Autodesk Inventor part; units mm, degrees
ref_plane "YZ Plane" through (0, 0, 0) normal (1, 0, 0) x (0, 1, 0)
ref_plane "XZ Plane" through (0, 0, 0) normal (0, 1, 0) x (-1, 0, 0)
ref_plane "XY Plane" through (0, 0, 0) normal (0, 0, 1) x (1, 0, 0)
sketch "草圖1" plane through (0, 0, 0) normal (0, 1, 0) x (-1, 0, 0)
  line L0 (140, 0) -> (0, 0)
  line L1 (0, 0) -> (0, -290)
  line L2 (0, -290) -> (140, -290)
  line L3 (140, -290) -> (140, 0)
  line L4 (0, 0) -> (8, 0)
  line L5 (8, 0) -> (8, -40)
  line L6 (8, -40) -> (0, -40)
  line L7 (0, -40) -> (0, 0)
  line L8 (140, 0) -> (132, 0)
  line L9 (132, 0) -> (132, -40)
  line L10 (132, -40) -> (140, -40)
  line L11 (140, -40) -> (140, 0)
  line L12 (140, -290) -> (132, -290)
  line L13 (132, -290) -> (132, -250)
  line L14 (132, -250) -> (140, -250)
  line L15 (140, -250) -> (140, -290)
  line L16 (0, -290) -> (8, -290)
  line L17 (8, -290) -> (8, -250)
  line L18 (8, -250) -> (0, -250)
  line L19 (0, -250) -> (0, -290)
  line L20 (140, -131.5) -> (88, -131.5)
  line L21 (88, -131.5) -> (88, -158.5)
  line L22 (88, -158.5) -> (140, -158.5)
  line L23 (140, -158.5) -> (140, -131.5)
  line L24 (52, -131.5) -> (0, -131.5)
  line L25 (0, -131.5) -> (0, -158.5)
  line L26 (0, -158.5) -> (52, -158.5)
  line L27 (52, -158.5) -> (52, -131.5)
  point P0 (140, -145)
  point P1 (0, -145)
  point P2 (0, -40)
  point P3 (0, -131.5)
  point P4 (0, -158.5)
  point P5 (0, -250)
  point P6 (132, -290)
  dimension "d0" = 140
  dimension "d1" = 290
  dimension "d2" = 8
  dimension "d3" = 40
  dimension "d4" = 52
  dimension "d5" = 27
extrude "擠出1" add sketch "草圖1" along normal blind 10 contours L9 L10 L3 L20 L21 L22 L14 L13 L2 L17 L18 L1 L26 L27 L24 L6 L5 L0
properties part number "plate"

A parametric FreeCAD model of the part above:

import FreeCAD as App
import Part
import Sketcher
from FreeCAD import Vector


def add_polygon(sketch, points):
    """Adds a closed chain of lines whose ends are joined by coincident constraints."""
    first, n = sketch.GeometryCount, len(points)
    for a, b in zip(points, points[1:] + points[:1]):
        sketch.addGeometry(Part.LineSegment(App.Vector(*a, 0), App.Vector(*b, 0)), False)
    for i in range(n):
        sketch.addConstraint(Sketcher.Constraint("Coincident", first + i, 2, first + (i + 1) % n, 1))

doc = App.newDocument("Part")
body = doc.addObject("PartDesign::Body", "Body")

sketch1 = body.newObject("Sketcher::SketchObject", "Sketch")
sketch1.AttachmentSupport = (doc.getObject("XZ_Plane"), [""])
sketch1.MapMode = "FlatFace"
add_polygon(sketch1, [(-132, -40), (-132, 0), (-8, 0), (-8, -40), (0, -40), (0, -132), (-52, -132), (-52, -158), (0, -158), (0, -250), (-8, -250), (-8, -290), (-132, -290), (-132, -250), (-140, -250), (-140, -158), (-88, -158), (-88, -132), (-140, -132), (-140, -40)])
sketch1.addConstraint(Sketcher.Constraint("Vertical", 0))
sketch1.addConstraint(Sketcher.Constraint("Horizontal", 1))
sketch1.addConstraint(Sketcher.Constraint("Vertical", 2))
sketch1.addConstraint(Sketcher.Constraint("Horizontal", 3))
sketch1.addConstraint(Sketcher.Constraint("Vertical", 4))
sketch1.addConstraint(Sketcher.Constraint("Horizontal", 5))
sketch1.addConstraint(Sketcher.Constraint("Vertical", 6))
sketch1.addConstraint(Sketcher.Constraint("Horizontal", 7))
sketch1.addConstraint(Sketcher.Constraint("Vertical", 8))
sketch1.addConstraint(Sketcher.Constraint("Horizontal", 9))
sketch1.addConstraint(Sketcher.Constraint("Vertical", 10))
sketch1.addConstraint(Sketcher.Constraint("Horizontal", 11))
sketch1.addConstraint(Sketcher.Constraint("Vertical", 12))
sketch1.addConstraint(Sketcher.Constraint("Horizontal", 13))
sketch1.addConstraint(Sketcher.Constraint("Vertical", 14))
sketch1.addConstraint(Sketcher.Constraint("Horizontal", 15))
sketch1.addConstraint(Sketcher.Constraint("Vertical", 16))
sketch1.addConstraint(Sketcher.Constraint("Horizontal", 17))
sketch1.addConstraint(Sketcher.Constraint("Vertical", 18))
sketch1.addConstraint(Sketcher.Constraint("Horizontal", 19))
sketch1.addConstraint(Sketcher.Constraint("PointOnObject", 0, 2, -1))
sketch1.addConstraint(Sketcher.Constraint("PointOnObject", 3, 2, -2))
sketch1.addConstraint(Sketcher.Constraint("PointOnObject", 7, 2, -2))
sketch1.addConstraint(Sketcher.Constraint("Horizontal", 9, 2, 12, 2))
sketch1.addConstraint(Sketcher.Constraint("Horizontal", 7, 2, 14, 2))
sketch1.addConstraint(Sketcher.Constraint("Horizontal", 5, 2, 16, 2))
sketch1.addConstraint(Sketcher.Constraint("Horizontal", 3, 2, 18, 2))
sketch1.addConstraint(Sketcher.Constraint("Vertical", 2, 2, 9, 2))
sketch1.addConstraint(Sketcher.Constraint("Vertical", 0, 2, 11, 2))
sketch1.addConstraint(Sketcher.Constraint("Vertical", 14, 2, 17, 2))
sketch1.addConstraint(Sketcher.Constraint("Equal", 9, 13))
sketch1.addConstraint(Sketcher.Constraint("Equal", 7, 15))
sketch1.addConstraint(Sketcher.Constraint("Equal", 4, 8))
sketch1.addConstraint(Sketcher.Constraint("Equal", 2, 10))
sketch1.addConstraint(Sketcher.Constraint("DistanceX", 3, 1, 3, 2, 8.0))
sketch1.addConstraint(Sketcher.Constraint("DistanceX", 5, 2, 5, 1, 52.0))
sketch1.addConstraint(Sketcher.Constraint("DistanceY", 0, 1, 0, 2, 40.0))
sketch1.addConstraint(Sketcher.Constraint("DistanceY", 6, 2, 6, 1, 27.0))
sketch1.addConstraint(Sketcher.Constraint("DistanceY", 10, 2, -1, 1, 290.0))
sketch1.addConstraint(Sketcher.Constraint("DistanceX", 13, 2, -1, 1, 140.0))
pad1 = body.newObject("PartDesign::Pad", "Pad")
pad1.Profile = sketch1
pad1.Length = 10
pad1.Reversed = True

doc.recompute()
